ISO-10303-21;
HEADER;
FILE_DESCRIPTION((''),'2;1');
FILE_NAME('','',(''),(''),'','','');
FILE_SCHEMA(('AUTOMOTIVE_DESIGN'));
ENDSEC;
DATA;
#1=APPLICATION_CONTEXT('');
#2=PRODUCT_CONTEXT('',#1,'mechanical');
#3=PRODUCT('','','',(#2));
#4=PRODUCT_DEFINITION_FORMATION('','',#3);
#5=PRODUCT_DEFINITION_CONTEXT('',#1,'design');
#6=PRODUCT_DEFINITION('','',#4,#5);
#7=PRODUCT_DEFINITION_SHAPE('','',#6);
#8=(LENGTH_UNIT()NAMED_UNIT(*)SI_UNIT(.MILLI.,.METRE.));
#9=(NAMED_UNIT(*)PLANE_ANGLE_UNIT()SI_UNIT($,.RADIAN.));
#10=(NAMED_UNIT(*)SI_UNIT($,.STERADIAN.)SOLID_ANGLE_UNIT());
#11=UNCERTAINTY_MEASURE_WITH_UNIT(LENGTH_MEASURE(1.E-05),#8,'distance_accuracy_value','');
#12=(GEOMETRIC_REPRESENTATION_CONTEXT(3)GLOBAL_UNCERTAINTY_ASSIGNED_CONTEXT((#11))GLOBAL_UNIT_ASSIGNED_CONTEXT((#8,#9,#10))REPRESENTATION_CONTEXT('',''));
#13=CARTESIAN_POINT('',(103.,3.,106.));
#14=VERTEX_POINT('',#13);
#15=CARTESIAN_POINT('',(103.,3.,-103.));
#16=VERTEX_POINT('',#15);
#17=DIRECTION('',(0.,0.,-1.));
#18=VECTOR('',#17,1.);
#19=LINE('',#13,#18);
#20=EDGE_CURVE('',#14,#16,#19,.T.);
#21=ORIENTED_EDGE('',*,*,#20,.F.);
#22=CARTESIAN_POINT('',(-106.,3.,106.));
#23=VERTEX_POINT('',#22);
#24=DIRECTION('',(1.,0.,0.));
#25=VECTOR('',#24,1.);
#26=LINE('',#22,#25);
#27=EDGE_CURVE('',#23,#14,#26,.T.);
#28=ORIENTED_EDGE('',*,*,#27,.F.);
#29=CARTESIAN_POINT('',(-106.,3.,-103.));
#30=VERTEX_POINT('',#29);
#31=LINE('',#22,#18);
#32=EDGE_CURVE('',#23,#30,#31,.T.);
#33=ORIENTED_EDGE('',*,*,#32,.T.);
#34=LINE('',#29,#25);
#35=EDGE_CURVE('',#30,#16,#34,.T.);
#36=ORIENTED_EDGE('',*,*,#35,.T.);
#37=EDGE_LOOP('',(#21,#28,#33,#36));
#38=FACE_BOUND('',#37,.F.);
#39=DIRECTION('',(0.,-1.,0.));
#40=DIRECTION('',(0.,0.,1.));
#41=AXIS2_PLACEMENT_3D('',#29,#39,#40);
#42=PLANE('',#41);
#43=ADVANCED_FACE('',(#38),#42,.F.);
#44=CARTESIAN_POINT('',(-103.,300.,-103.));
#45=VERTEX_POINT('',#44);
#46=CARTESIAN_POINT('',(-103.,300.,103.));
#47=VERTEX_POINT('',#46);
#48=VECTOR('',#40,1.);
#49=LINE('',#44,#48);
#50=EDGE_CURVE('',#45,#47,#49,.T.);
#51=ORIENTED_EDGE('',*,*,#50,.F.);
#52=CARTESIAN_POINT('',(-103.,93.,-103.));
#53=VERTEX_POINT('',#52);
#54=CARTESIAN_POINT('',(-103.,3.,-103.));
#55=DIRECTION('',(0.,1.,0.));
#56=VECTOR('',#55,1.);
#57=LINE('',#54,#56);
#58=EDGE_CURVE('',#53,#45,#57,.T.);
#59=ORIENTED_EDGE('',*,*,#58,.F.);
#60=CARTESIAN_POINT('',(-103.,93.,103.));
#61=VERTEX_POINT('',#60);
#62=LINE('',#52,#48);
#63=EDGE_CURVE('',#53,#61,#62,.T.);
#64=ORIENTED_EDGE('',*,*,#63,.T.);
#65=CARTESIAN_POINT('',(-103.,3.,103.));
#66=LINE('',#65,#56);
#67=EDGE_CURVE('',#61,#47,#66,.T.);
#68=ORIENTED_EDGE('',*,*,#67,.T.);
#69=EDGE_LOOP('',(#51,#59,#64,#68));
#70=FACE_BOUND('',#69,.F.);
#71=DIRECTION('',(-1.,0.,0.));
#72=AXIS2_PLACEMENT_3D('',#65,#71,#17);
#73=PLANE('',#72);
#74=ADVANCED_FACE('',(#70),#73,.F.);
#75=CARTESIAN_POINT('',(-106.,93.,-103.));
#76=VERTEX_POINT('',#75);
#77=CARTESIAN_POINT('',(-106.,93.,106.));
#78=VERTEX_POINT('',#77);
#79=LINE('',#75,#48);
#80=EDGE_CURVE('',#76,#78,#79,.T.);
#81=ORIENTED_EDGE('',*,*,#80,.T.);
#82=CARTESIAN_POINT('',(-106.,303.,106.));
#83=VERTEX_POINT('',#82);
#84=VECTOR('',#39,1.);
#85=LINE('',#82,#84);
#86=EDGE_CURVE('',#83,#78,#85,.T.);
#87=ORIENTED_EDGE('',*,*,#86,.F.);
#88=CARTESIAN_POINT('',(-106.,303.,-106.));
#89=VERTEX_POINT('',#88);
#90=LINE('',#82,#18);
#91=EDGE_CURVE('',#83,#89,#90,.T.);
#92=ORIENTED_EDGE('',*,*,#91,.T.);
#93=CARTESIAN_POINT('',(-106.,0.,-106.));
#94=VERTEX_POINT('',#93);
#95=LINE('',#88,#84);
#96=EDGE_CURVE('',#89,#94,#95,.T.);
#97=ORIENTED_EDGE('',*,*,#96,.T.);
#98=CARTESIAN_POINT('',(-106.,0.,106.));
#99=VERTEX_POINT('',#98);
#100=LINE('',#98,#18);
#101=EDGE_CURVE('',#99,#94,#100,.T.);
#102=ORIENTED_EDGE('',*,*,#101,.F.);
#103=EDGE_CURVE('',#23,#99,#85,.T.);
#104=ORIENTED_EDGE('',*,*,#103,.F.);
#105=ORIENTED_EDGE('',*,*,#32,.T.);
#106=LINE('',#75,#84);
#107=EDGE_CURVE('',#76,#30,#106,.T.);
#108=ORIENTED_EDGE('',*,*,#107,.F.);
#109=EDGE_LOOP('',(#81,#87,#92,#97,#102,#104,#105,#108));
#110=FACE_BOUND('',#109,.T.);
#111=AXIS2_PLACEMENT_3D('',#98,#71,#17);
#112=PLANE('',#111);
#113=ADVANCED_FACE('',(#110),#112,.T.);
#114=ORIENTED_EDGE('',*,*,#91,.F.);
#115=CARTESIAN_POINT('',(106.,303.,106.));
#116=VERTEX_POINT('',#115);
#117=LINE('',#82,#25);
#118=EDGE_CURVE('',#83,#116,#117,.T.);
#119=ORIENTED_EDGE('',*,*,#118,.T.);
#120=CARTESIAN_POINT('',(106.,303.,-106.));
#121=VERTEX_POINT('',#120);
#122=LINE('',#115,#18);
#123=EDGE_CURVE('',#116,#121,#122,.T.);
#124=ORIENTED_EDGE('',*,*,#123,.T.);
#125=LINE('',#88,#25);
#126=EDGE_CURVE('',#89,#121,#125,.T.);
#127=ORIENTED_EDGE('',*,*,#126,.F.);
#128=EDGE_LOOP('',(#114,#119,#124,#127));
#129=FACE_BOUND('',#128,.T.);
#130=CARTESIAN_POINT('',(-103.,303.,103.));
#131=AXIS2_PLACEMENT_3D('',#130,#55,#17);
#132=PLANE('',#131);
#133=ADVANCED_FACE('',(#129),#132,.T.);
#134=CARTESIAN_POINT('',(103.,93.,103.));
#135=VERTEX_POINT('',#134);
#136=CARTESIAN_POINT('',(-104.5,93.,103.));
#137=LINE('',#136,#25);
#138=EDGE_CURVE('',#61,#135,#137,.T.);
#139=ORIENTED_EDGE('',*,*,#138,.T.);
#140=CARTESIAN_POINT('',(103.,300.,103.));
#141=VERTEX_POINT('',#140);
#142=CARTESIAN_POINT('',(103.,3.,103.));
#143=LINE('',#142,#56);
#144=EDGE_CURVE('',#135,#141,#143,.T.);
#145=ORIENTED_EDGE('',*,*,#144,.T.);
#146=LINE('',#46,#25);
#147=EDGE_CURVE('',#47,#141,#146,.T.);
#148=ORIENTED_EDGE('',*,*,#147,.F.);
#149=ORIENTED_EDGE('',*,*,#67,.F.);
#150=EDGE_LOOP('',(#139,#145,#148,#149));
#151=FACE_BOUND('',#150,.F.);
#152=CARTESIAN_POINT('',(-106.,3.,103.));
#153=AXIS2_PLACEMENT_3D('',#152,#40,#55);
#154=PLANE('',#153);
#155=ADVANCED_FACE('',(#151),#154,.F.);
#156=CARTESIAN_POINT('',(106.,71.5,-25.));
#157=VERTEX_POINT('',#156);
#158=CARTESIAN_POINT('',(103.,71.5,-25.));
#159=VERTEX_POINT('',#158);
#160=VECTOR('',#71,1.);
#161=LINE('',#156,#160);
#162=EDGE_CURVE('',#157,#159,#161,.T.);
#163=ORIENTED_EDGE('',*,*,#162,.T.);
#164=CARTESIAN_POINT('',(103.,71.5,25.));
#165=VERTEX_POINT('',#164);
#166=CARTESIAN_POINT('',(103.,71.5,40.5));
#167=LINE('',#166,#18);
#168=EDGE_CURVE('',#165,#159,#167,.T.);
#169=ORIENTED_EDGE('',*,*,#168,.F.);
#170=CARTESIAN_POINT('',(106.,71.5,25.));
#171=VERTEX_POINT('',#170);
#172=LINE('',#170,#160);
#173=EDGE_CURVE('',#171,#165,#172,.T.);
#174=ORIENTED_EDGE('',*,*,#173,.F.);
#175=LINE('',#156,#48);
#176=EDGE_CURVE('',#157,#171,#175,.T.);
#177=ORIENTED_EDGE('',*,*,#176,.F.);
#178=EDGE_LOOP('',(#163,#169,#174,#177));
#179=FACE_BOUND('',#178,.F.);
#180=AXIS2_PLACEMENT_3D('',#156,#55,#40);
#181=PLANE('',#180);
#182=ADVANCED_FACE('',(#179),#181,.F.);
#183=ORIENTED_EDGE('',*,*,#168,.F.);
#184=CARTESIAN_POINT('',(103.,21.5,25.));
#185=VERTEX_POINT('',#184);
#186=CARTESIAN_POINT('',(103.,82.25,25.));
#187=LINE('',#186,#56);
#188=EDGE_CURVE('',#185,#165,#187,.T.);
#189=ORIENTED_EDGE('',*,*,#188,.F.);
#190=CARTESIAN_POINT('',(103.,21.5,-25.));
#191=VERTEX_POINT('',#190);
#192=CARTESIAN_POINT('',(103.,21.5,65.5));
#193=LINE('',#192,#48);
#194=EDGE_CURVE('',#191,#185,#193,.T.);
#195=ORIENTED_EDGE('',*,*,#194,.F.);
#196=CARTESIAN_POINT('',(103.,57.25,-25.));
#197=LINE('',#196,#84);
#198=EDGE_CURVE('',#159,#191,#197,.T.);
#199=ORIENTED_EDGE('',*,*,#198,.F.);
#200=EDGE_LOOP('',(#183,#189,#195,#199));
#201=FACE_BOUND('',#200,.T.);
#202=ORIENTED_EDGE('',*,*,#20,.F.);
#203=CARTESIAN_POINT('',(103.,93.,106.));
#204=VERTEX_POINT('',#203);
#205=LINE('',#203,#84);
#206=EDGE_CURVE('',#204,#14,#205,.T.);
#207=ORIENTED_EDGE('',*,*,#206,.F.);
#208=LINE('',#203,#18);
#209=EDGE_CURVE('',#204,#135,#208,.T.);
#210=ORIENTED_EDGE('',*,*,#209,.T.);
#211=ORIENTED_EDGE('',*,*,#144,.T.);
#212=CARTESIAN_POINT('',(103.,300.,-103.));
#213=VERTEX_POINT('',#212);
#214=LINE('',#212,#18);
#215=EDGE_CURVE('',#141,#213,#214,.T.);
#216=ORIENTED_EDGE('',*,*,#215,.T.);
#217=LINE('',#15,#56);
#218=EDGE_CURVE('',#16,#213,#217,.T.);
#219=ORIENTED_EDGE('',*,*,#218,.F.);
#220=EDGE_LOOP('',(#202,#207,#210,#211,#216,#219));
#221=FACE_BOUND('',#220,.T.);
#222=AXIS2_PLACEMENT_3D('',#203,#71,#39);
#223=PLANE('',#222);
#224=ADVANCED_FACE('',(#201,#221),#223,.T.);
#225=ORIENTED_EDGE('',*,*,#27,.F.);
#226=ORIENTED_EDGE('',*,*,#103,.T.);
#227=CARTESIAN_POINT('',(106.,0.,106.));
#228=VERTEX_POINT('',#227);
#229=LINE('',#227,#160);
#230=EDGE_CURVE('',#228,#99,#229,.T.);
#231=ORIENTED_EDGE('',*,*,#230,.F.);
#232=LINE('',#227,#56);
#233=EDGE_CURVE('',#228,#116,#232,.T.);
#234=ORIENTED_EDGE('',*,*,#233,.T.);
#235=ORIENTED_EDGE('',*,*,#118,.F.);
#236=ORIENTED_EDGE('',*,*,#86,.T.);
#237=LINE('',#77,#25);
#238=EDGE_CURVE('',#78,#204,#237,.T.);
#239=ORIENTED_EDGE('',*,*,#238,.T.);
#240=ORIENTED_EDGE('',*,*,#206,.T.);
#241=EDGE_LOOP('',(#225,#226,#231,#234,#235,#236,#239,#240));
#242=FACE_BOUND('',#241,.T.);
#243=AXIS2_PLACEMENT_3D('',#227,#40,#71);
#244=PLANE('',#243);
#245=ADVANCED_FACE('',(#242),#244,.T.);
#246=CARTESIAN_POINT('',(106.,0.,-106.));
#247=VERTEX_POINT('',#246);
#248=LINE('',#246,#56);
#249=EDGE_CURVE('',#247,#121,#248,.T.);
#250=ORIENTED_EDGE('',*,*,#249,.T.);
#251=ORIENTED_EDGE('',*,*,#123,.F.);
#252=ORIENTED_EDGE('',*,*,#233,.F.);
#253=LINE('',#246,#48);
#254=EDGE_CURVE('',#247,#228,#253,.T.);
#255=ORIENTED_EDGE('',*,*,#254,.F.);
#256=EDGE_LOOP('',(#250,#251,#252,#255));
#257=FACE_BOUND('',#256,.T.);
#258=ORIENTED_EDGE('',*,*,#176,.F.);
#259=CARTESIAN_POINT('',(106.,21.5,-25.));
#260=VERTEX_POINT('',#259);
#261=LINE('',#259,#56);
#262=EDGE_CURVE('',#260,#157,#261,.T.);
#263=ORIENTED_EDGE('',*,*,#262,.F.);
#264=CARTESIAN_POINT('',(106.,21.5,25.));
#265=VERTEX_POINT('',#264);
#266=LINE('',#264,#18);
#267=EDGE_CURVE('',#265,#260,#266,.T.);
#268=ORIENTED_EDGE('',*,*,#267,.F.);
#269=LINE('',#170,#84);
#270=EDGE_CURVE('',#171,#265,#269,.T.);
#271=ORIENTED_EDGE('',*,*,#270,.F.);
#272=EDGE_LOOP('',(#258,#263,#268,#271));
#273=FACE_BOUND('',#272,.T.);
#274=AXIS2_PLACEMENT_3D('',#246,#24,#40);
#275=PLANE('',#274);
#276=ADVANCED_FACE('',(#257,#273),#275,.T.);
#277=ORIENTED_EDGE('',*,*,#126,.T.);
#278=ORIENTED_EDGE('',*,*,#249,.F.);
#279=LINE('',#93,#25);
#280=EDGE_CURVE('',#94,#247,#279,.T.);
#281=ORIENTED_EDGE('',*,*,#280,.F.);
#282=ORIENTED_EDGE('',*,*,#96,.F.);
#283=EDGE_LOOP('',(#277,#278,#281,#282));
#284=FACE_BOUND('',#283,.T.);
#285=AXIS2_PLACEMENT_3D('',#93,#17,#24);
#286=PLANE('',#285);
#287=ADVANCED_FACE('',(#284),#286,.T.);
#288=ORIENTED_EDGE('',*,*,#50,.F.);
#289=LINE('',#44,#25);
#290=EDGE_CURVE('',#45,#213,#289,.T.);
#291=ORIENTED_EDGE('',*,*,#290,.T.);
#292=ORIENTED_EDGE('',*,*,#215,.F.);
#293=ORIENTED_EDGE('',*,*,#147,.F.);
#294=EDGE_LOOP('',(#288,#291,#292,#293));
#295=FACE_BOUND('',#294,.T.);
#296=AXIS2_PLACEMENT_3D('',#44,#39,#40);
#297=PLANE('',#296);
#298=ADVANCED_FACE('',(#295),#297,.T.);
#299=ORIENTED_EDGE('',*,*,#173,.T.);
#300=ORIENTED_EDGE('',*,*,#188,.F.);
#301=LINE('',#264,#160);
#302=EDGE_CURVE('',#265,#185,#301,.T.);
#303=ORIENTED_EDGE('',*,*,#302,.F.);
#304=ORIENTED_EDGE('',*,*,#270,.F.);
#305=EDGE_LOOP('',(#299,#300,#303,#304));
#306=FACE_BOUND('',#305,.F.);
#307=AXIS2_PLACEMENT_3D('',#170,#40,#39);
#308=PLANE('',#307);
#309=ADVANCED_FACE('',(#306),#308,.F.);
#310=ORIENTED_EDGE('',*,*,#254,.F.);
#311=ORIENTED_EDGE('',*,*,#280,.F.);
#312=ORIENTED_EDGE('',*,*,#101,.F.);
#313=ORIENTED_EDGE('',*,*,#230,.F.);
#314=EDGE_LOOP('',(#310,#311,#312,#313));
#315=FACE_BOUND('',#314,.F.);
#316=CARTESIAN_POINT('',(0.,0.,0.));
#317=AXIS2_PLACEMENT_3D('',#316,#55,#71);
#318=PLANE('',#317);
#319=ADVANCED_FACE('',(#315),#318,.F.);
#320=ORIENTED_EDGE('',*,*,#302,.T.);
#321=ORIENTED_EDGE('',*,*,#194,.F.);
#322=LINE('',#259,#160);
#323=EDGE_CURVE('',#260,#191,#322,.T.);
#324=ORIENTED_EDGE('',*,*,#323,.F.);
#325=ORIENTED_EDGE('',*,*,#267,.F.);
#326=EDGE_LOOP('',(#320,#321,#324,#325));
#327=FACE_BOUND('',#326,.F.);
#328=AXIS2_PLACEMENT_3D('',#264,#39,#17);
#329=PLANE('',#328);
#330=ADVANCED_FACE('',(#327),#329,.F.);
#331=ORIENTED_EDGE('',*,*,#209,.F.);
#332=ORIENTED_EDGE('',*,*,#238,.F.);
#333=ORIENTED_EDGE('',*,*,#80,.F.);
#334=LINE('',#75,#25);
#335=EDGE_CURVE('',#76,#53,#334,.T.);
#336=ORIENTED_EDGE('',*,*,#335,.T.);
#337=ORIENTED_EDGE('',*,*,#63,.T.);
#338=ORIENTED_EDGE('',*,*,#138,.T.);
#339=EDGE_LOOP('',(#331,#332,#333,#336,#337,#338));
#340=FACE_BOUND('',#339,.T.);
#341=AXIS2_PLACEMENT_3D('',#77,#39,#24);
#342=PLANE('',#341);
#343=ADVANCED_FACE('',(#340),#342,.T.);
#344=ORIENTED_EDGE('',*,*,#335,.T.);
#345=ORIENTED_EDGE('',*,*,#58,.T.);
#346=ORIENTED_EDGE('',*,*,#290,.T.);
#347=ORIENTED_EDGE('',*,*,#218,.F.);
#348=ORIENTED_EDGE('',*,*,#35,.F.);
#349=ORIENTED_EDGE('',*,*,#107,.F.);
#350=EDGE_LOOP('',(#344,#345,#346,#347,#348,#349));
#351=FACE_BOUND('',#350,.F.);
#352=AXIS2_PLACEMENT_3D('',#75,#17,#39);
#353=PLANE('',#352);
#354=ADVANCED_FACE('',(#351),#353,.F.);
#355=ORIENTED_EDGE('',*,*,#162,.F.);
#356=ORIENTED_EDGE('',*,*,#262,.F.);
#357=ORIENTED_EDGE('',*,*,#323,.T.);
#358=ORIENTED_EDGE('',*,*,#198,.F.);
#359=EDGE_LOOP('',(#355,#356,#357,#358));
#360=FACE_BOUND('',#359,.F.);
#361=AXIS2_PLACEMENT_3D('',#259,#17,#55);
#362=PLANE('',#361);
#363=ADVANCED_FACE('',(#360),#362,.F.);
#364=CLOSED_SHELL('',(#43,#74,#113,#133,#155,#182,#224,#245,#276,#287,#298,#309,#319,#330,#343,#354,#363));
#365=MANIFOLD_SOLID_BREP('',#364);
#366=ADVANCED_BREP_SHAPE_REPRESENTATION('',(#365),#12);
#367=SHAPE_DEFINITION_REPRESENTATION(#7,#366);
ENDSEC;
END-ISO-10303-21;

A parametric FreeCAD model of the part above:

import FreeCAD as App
import Part
import Sketcher
from FreeCAD import Vector

doc = App.newDocument("Part")
params = doc.addObject("Spreadsheet::Sheet", "Params")
for row, (alias, value) in enumerate([
    ("sketch1_width", "212 mm"),
    ("pad1_length", "3 mm"),
    ("sketch2_width", "212 mm"),
    ("pad2_length", "300 mm"),
    ("sketch3_width", "3 mm"),
    ("sketch3_height", "206 mm"),
    ("pad3_length", "209 mm"),
    ("sketch4_width", "90 mm"),
    ("sketch4_height", "206 mm"),
    ("pocket1_length", "10 mm"),
    ("sketch5_width", "209 mm"),
    ("sketch5_height", "90 mm"),
    ("pocket2_length", "10 mm"),
    ("sketch6_width", "50 mm"),
    ("pocket3_length", "10 mm"),
], start=1):
    params.set(f"A{row}", alias)
    params.set(f"B{row}", "=" + value)
    params.setAlias(f"B{row}", alias)

body = doc.addObject("PartDesign::Body", "Body")

# Sketch on XZ plane
sketch1 = body.newObject("Sketcher::SketchObject", "Sketch")
sketch1.AttachmentSupport = (doc.getObject("XZ_Plane"), [""])
sketch1.MapMode = "FlatFace"
sketch1.addGeometry([
    Part.LineSegment(Vector(-106, 106, 0), Vector(106, 106, 0)),
    Part.LineSegment(Vector(106, 106, 0), Vector(106, -106, 0)),
    Part.LineSegment(Vector(106, -106, 0), Vector(-106, -106, 0)),
    Part.LineSegment(Vector(-106, -106, 0), Vector(-106, 106, 0)),
], False)
sketch1.addConstraint([
    Sketcher.Constraint("Coincident", 0, 2, 1, 1),
    Sketcher.Constraint("Coincident", 1, 2, 2, 1),
    Sketcher.Constraint("Coincident", 2, 2, 3, 1),
    Sketcher.Constraint("Coincident", 3, 2, 0, 1),
    Sketcher.Constraint("Horizontal", 0),
    Sketcher.Constraint("Vertical", 1),
    Sketcher.Constraint("Horizontal", 2),
    Sketcher.Constraint("Vertical", 3),
    Sketcher.Constraint("Symmetric", 0, 2, 2, 2, -1, 1),
    Sketcher.Constraint("Equal", 2, 1),
    Sketcher.Constraint("DistanceX", 0, 1, 0, 2, 212.0),
])
sketch1.setExpression("Constraints[10]", "Params.sketch1_width")
pad1 = body.newObject("PartDesign::Pad", "Pad")
pad1.Profile = sketch1
pad1.setExpression("Length", "Params.pad1_length")
pad1.Reversed = True

# Sketch on XZ plane
sketch2 = body.newObject("Sketcher::SketchObject", "Sketch001")
sketch2.AttachmentSupport = (doc.getObject("XZ_Plane"), [""])
sketch2.MapMode = "FlatFace"
sketch2.AttachmentOffset = App.Placement(Vector(0, 0, -3), App.Rotation())
sketch2.addGeometry([
    Part.LineSegment(Vector(-106, -106, 0), Vector(-106, 106, 0)),  # 0
    Part.LineSegment(Vector(-106, 106, 0), Vector(106, 106, 0)),  # 1
    Part.LineSegment(Vector(106, 106, 0), Vector(106, -106, 0)),  # 2
    Part.LineSegment(Vector(106, -106, 0), Vector(-106, -106, 0)),  # 3
    Part.LineSegment(Vector(-103, -103, 0), Vector(103, -103, 0)),  # 4
    Part.LineSegment(Vector(103, -103, 0), Vector(103, 103, 0)),  # 5
    Part.LineSegment(Vector(103, 103, 0), Vector(-103, 103, 0)),  # 6
    Part.LineSegment(Vector(-103, 103, 0), Vector(-103, -103, 0)),  # 7
], False)
sketch2.addConstraint([
    Sketcher.Constraint("Coincident", 0, 2, 1, 1),
    Sketcher.Constraint("Coincident", 1, 2, 2, 1),
    Sketcher.Constraint("Coincident", 2, 2, 3, 1),
    Sketcher.Constraint("Coincident", 3, 2, 0, 1),
    Sketcher.Constraint("Coincident", 4, 2, 5, 1),
    Sketcher.Constraint("Coincident", 5, 2, 6, 1),
    Sketcher.Constraint("Coincident", 6, 2, 7, 1),
    Sketcher.Constraint("Coincident", 7, 2, 4, 1),
    Sketcher.Constraint("Vertical", 0),
    Sketcher.Constraint("Horizontal", 1),
    Sketcher.Constraint("Vertical", 2),
    Sketcher.Constraint("Horizontal", 3),
    Sketcher.Constraint("Horizontal", 4),
    Sketcher.Constraint("Vertical", 5),
    Sketcher.Constraint("Horizontal", 6),
    Sketcher.Constraint("Vertical", 7),
    Sketcher.Constraint("Symmetric", 0, 2, 2, 2, -1, 1),
    Sketcher.Constraint("Symmetric", 4, 2, 6, 2, -1, 1),
    Sketcher.Constraint("Equal", 3, 0),
    Sketcher.Constraint("Equal", 6, 5),
    Sketcher.Constraint("DistanceX", 4, 2, 2, 2, 3.0),
    Sketcher.Constraint("DistanceX", 1, 1, 1, 2, 212.0),
])
sketch2.setExpression("Constraints[21]", "Params.sketch2_width")
pad2 = body.newObject("PartDesign::Pad", "Pad001")
pad2.Profile = sketch2
pad2.setExpression("Length", "Params.pad2_length")
pad2.Reversed = True

# Sketch on YZ plane
sketch3 = body.newObject("Sketcher::SketchObject", "Sketch002")
sketch3.AttachmentSupport = (doc.getObject("YZ_Plane"), [""])
sketch3.MapMode = "FlatFace"
sketch3.AttachmentOffset = App.Placement(Vector(0, 0, -103), App.Rotation())
sketch3.addGeometry([
    Part.LineSegment(Vector(303, 103, 0), Vector(300, 103, 0)),
    Part.LineSegment(Vector(300, 103, 0), Vector(300, -103, 0)),
    Part.LineSegment(Vector(300, -103, 0), Vector(303, -103, 0)),
    Part.LineSegment(Vector(303, -103, 0), Vector(303, 103, 0)),
], False)
sketch3.addConstraint([
    Sketcher.Constraint("Coincident", 0, 2, 1, 1),
    Sketcher.Constraint("Coincident", 1, 2, 2, 1),
    Sketcher.Constraint("Coincident", 2, 2, 3, 1),
    Sketcher.Constraint("Coincident", 3, 2, 0, 1),
    Sketcher.Constraint("Horizontal", 0),
    Sketcher.Constraint("Vertical", 1),
    Sketcher.Constraint("Horizontal", 2),
    Sketcher.Constraint("Vertical", 3),
    Sketcher.Constraint("DistanceX", 0, 2, 0, 1, 3.0),
    Sketcher.Constraint("DistanceY", 1, 2, 1, 1, 206.0),
    Sketcher.Constraint("DistanceX", -1, 1, 0, 2, 300.0),
    Sketcher.Constraint("DistanceY", -1, 1, 0, 2, 103.0),
])
sketch3.setExpression("Constraints[8]", "Params.sketch3_width")
sketch3.setExpression("Constraints[9]", "Params.sketch3_height")
pad3 = body.newObject("PartDesign::Pad", "Pad002")
pad3.Profile = sketch3
pad3.setExpression("Length", "Params.pad3_length")

# Sketch on YZ plane
sketch4 = body.newObject("Sketcher::SketchObject", "Sketch003")
sketch4.AttachmentSupport = (doc.getObject("YZ_Plane"), [""])
sketch4.MapMode = "FlatFace"
sketch4.AttachmentOffset = App.Placement(Vector(0, 0, -106), App.Rotation())
sketch4.addGeometry([
    Part.LineSegment(Vector(93, -103, 0), Vector(3, -103, 0)),
    Part.LineSegment(Vector(3, -103, 0), Vector(3, 103, 0)),
    Part.LineSegment(Vector(3, 103, 0), Vector(93, 103, 0)),
    Part.LineSegment(Vector(93, 103, 0), Vector(93, -103, 0)),
], False)
sketch4.addConstraint([
    Sketcher.Constraint("Coincident", 0, 2, 1, 1),
    Sketcher.Constraint("Coincident", 1, 2, 2, 1),
    Sketcher.Constraint("Coincident", 2, 2, 3, 1),
    Sketcher.Constraint("Coincident", 3, 2, 0, 1),
    Sketcher.Constraint("Horizontal", 0),
    Sketcher.Constraint("Vertical", 1),
    Sketcher.Constraint("Horizontal", 2),
    Sketcher.Constraint("Vertical", 3),
    Sketcher.Constraint("DistanceX", 0, 2, 0, 1, 90.0),
    Sketcher.Constraint("DistanceY", 1, 1, 1, 2, 206.0),
    Sketcher.Constraint("DistanceX", -1, 1, 0, 2, 3.0),
    Sketcher.Constraint("DistanceY", 0, 2, -1, 1, 103.0),
])
sketch4.setExpression("Constraints[8]", "Params.sketch4_width")
sketch4.setExpression("Constraints[9]", "Params.sketch4_height")
pocket1 = body.newObject("PartDesign::Pocket", "Pocket")
pocket1.Profile = sketch4
pocket1.setExpression("Length", "Params.pocket1_length")
pocket1.Reversed = True

# Sketch on XY plane
sketch5 = body.newObject("Sketcher::SketchObject", "Sketch004")
sketch5.AttachmentSupport = (doc.getObject("XY_Plane"), [""])
sketch5.MapMode = "FlatFace"
sketch5.AttachmentOffset = App.Placement(Vector(0, 0, 106), App.Rotation())
sketch5.addGeometry([
    Part.LineSegment(Vector(103, 93, 0), Vector(-106, 93, 0)),
    Part.LineSegment(Vector(-106, 93, 0), Vector(-106, 3, 0)),
    Part.LineSegment(Vector(-106, 3, 0), Vector(103, 3, 0)),
    Part.LineSegment(Vector(103, 3, 0), Vector(103, 93, 0)),
], False)
sketch5.addConstraint([
    Sketcher.Constraint("Coincident", 0, 2, 1, 1),
    Sketcher.Constraint("Coincident", 1, 2, 2, 1),
    Sketcher.Constraint("Coincident", 2, 2, 3, 1),
    Sketcher.Constraint("Coincident", 3, 2, 0, 1),
    Sketcher.Constraint("Horizontal", 0),
    Sketcher.Constraint("Vertical", 1),
    Sketcher.Constraint("Horizontal", 2),
    Sketcher.Constraint("Vertical", 3),
    Sketcher.Constraint("DistanceX", 0, 2, 0, 1, 209.0),
    Sketcher.Constraint("DistanceY", 1, 2, 1, 1, 90.0),
    Sketcher.Constraint("DistanceX", 0, 2, -1, 1, 106.0),
    Sketcher.Constraint("DistanceY", -1, 1, 0, 2, 93.0),
])
sketch5.setExpression("Constraints[8]", "Params.sketch5_width")
sketch5.setExpression("Constraints[9]", "Params.sketch5_height")
pocket2 = body.newObject("PartDesign::Pocket", "Pocket001")
pocket2.Profile = sketch5
pocket2.setExpression("Length", "Params.pocket2_length")

# Sketch on YZ plane
sketch6 = body.newObject("Sketcher::SketchObject", "Sketch005")
sketch6.AttachmentSupport = (doc.getObject("YZ_Plane"), [""])
sketch6.MapMode = "FlatFace"
sketch6.AttachmentOffset = App.Placement(Vector(0, 0, 106), App.Rotation())
sketch6.addGeometry([
    Part.LineSegment(Vector(22, -25, 0), Vector(72, -25, 0)),
    Part.LineSegment(Vector(72, -25, 0), Vector(72, 25, 0)),
    Part.LineSegment(Vector(72, 25, 0), Vector(22, 25, 0)),
    Part.LineSegment(Vector(22, 25, 0), Vector(22, -25, 0)),
], False)
sketch6.addConstraint([
    Sketcher.Constraint("Coincident", 0, 2, 1, 1),
    Sketcher.Constraint("Coincident", 1, 2, 2, 1),
    Sketcher.Constraint("Coincident", 2, 2, 3, 1),
    Sketcher.Constraint("Coincident", 3, 2, 0, 1),
    Sketcher.Constraint("Horizontal", 0),
    Sketcher.Constraint("Vertical", 1),
    Sketcher.Constraint("Horizontal", 2),
    Sketcher.Constraint("Vertical", 3),
    Sketcher.Constraint("Equal", 2, 1),
    Sketcher.Constraint("DistanceX", 0, 1, 0, 2, 50.0),
    Sketcher.Constraint("DistanceY", 0, 2, -1, 1, 25.0),
    Sketcher.Constraint("DistanceX", -1, 1, 0, 2, 71.5),
])
sketch6.setExpression("Constraints[9]", "Params.sketch6_width")
pocket3 = body.newObject("PartDesign::Pocket", "Pocket002")
pocket3.Profile = sketch6
pocket3.setExpression("Length", "Params.pocket3_length")

doc.recompute()
